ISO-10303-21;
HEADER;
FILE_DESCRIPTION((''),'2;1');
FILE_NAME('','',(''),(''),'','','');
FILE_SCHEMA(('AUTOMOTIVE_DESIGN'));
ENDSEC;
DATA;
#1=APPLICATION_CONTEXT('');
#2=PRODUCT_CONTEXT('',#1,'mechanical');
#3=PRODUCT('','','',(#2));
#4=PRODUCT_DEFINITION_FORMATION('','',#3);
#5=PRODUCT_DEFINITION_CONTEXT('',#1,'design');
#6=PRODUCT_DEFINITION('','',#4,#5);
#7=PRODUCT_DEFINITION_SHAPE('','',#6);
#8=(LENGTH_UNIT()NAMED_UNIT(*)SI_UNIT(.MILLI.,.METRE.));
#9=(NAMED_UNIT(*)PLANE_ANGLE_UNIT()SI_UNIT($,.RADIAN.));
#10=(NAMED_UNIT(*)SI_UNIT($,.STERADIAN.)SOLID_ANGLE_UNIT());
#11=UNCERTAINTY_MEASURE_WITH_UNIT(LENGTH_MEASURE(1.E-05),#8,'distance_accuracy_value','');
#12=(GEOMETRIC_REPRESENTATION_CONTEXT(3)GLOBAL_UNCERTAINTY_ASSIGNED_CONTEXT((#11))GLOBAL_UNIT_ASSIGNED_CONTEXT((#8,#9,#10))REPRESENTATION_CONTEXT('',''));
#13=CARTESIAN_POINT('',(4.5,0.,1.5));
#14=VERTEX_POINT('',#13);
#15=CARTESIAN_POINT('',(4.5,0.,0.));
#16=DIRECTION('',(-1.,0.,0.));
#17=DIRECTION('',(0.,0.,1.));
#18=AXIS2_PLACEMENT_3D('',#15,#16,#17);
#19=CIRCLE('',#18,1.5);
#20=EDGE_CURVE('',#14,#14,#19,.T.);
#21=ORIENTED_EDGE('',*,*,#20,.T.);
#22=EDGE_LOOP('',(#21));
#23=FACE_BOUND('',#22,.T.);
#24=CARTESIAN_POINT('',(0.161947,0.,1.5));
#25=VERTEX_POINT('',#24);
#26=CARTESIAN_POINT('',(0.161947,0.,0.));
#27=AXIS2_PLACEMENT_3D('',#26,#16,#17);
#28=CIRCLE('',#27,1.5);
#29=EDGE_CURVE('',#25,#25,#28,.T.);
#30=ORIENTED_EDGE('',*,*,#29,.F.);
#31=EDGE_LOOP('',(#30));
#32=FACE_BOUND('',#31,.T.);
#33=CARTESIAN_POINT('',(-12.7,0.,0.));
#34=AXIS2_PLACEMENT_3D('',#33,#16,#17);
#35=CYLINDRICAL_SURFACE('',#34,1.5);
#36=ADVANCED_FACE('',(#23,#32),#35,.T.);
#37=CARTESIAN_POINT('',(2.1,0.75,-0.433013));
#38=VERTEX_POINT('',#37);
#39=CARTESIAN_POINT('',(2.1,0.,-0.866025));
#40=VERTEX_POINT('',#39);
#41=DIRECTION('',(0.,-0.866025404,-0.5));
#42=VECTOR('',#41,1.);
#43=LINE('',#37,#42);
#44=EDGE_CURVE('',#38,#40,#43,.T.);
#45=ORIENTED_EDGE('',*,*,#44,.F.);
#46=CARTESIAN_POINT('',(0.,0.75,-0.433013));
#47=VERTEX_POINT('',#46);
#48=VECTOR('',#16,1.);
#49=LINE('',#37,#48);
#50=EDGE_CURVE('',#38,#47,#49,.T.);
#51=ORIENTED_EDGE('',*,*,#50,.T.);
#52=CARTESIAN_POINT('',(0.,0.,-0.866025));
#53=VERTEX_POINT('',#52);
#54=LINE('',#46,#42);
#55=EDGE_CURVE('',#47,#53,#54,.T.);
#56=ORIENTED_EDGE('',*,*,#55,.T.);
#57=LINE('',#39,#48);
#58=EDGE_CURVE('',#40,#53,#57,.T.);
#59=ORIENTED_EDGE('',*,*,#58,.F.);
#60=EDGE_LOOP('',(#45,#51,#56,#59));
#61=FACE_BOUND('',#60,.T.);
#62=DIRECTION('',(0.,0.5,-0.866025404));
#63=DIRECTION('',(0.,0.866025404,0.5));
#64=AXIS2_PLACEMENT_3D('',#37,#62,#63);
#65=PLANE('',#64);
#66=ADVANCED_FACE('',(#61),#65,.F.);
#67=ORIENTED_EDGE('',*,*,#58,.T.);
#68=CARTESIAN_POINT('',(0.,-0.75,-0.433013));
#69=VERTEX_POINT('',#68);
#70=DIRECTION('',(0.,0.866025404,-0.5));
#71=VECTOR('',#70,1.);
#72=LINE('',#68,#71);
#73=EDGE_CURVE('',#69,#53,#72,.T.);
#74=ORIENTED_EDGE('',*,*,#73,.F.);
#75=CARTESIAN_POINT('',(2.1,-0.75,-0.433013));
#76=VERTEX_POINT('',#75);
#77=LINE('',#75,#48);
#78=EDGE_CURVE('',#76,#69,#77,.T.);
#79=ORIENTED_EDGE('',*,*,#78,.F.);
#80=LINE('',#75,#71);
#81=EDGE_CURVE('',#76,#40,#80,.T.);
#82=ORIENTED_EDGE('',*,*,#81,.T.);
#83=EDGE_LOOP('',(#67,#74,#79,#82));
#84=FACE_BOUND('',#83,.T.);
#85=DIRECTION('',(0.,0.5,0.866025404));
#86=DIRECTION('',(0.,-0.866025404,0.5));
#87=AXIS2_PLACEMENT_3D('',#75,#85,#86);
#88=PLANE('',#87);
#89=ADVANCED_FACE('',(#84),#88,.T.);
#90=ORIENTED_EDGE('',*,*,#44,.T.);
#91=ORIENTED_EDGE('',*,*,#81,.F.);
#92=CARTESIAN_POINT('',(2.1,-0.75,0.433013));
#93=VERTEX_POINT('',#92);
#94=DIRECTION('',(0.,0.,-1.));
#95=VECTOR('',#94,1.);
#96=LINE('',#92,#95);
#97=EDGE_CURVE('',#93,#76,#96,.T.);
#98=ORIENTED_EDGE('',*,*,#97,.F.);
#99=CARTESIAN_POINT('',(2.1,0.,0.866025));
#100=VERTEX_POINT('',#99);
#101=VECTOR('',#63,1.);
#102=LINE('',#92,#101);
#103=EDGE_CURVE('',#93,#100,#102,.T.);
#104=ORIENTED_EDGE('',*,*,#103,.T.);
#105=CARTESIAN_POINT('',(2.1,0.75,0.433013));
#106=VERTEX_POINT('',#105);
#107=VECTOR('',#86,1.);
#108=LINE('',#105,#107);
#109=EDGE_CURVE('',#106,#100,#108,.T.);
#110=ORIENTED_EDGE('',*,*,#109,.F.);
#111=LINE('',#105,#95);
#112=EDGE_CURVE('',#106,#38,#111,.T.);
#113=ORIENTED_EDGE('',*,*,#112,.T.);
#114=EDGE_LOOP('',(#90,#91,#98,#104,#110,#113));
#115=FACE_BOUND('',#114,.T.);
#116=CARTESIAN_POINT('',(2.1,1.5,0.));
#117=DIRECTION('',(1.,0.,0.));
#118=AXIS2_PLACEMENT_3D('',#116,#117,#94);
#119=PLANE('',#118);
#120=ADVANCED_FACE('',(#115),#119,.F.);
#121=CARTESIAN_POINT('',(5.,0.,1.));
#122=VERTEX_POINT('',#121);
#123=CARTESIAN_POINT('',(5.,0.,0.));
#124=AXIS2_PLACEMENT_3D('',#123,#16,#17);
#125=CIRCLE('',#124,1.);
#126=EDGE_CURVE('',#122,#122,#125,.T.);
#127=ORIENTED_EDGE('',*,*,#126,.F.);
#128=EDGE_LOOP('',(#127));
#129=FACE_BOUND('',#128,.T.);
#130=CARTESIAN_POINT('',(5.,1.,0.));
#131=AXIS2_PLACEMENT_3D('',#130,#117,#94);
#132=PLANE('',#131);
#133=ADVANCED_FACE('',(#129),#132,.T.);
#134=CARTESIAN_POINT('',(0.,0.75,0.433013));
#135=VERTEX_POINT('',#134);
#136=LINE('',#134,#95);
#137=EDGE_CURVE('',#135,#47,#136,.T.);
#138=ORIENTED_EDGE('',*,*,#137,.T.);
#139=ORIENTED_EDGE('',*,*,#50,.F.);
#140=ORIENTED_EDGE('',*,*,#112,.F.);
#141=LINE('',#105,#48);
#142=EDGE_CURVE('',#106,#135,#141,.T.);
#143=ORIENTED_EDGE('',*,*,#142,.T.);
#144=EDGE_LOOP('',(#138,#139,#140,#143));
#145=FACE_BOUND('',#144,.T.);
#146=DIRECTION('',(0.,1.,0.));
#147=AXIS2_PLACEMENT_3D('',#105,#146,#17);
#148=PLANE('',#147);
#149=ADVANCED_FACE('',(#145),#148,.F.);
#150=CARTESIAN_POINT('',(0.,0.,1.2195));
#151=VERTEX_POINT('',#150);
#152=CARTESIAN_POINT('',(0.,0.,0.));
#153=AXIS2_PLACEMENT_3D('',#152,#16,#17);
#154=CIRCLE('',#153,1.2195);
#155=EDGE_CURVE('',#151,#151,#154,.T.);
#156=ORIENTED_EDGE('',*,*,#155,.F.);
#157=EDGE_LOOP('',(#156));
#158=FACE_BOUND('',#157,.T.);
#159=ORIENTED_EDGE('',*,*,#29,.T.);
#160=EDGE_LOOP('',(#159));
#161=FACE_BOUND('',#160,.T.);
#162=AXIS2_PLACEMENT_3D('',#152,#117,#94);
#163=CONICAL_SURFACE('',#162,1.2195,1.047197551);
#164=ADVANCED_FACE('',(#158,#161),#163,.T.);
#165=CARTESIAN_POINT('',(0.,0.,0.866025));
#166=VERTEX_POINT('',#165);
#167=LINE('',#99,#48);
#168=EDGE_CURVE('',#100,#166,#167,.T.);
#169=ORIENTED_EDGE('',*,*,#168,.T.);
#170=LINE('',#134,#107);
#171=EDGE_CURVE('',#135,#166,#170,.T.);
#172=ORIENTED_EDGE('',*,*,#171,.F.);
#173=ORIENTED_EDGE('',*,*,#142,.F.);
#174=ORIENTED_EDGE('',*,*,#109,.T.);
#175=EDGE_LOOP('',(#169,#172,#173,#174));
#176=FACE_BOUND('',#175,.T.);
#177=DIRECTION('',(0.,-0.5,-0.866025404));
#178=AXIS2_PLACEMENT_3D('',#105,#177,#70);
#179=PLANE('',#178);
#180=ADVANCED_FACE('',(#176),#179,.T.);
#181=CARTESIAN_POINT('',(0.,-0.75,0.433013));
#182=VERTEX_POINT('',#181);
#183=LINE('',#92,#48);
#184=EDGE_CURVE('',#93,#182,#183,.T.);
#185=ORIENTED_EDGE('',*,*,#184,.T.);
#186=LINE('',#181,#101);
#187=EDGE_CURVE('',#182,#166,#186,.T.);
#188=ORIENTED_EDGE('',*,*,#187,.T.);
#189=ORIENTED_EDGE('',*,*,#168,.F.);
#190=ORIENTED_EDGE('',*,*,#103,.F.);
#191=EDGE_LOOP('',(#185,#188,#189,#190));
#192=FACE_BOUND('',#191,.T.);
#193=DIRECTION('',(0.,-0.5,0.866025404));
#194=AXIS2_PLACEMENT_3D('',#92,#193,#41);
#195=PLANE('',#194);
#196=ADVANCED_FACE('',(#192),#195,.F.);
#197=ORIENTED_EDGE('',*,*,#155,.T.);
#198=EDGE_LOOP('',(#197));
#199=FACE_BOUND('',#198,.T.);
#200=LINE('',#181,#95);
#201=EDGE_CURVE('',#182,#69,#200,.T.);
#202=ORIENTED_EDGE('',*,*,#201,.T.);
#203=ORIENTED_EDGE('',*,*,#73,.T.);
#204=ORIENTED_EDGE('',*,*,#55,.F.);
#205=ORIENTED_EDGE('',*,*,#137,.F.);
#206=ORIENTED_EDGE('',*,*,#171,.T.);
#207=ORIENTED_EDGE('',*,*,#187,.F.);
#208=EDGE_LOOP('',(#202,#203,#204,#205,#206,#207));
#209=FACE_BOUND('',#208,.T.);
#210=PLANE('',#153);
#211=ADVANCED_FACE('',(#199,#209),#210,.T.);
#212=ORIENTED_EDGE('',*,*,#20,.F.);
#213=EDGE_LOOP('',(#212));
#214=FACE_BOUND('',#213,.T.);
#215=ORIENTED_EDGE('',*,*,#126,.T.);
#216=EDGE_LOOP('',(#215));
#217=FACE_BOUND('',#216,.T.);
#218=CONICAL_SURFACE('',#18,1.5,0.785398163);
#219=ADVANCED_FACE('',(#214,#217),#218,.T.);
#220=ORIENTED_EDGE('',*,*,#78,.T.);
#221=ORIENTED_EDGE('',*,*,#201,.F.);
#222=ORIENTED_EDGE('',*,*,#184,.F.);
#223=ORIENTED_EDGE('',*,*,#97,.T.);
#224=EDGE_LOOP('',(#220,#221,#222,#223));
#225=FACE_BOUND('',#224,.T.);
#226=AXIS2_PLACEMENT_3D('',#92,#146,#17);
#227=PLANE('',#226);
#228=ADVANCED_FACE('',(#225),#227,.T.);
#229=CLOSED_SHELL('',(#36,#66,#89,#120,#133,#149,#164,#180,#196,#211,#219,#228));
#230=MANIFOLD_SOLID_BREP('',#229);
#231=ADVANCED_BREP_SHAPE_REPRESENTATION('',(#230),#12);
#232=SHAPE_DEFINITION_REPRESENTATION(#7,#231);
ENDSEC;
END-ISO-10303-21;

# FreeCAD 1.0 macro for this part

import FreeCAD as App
import Part
import Sketcher

V = App.Vector
Q = App.Units.Quantity


def add_polygon(sketch, points):
    """Adds a closed chain of lines whose ends are joined by coincident constraints."""
    first, n = sketch.GeometryCount, len(points)
    for a, b in zip(points, points[1:] + points[:1]):
        sketch.addGeometry(Part.LineSegment(App.Vector(*a, 0), App.Vector(*b, 0)), False)
    for i in range(n):
        sketch.addConstraint(Sketcher.Constraint("Coincident", first + i, 2, first + (i + 1) % n, 1))

doc = App.newDocument("Part")
body = doc.addObject("PartDesign::Body", "Body")

# Sketch on XY plane
sketch1 = body.newObject("Sketcher::SketchObject", "Sketch")
sketch1.AttachmentSupport = (doc.getObject("XY_Plane"), [""])
sketch1.MapMode = "FlatFace"
add_polygon(sketch1, [(0, 1.22), (0, 0), (5, 0), (5, 1), (4.5, 1.5), (0.16, 1.5)])  # lines 0-5
sketch1.addConstraint([
    Sketcher.Constraint("Vertical", 0),
    Sketcher.Constraint("Horizontal", 1),
    Sketcher.Constraint("Vertical", 2),
    Sketcher.Constraint("Horizontal", 4),
    Sketcher.Constraint("Coincident", 0, 2, -1, 1),
    Sketcher.Constraint("DistanceX", 1, 1, 1, 2, 5.0),
    Sketcher.Constraint("DistanceY", 2, 1, 2, 2, 1.0),
    Sketcher.Constraint("Angle", 3, Q("135 deg")),
    Sketcher.Constraint("Angle", 5, Q("-120 deg")),
    Sketcher.Constraint("DistanceX", -1, 1, 3, 2, 4.5),
    Sketcher.Constraint("DistanceY", 0, 2, 0, 1, 1.2195),
])
revolution = body.newObject("PartDesign::Revolution", "Revolution")
revolution.Profile = sketch1
revolution.ReferenceAxis = (sketch1, ["H_Axis"])
revolution.Angle = 360

# Sketch on YZ plane
sketch2 = body.newObject("Sketcher::SketchObject", "Sketch001")
sketch2.AttachmentSupport = (doc.getObject("YZ_Plane"), [""])
sketch2.MapMode = "FlatFace"
add_polygon(sketch2, [(0.8, 0.4), (0.8, -0.4), (0, -0.9), (-0.8, -0.4), (-0.8, 0.4), (0, 0.9)])  # lines 0-5
sketch2.addConstraint([
    Sketcher.Constraint("Vertical", 0),
    Sketcher.Constraint("Vertical", 3),
    Sketcher.Constraint("Symmetric", 0, 2, 3, 2, -1, 1),
    Sketcher.Constraint("Symmetric", 1, 2, 4, 2, -1, 1),
    Sketcher.Constraint("PointOnObject", 1, 2, -2),
    Sketcher.Constraint("Parallel", 2, 5),
    Sketcher.Constraint("Horizontal", 0, 2, 2, 2),
    Sketcher.Constraint("Angle", 1, Q("-150 deg")),
    Sketcher.Constraint("DistanceX", 2, 2, 0, 2, 1.5),
    Sketcher.Constraint("DistanceY", 0, 2, 0, 1, 0.866025),
])
pocket1 = body.newObject("PartDesign::Pocket", "Pocket")
pocket1.Profile = sketch2
pocket1.Length = 2.1
pocket1.Reversed = True

doc.recompute()
